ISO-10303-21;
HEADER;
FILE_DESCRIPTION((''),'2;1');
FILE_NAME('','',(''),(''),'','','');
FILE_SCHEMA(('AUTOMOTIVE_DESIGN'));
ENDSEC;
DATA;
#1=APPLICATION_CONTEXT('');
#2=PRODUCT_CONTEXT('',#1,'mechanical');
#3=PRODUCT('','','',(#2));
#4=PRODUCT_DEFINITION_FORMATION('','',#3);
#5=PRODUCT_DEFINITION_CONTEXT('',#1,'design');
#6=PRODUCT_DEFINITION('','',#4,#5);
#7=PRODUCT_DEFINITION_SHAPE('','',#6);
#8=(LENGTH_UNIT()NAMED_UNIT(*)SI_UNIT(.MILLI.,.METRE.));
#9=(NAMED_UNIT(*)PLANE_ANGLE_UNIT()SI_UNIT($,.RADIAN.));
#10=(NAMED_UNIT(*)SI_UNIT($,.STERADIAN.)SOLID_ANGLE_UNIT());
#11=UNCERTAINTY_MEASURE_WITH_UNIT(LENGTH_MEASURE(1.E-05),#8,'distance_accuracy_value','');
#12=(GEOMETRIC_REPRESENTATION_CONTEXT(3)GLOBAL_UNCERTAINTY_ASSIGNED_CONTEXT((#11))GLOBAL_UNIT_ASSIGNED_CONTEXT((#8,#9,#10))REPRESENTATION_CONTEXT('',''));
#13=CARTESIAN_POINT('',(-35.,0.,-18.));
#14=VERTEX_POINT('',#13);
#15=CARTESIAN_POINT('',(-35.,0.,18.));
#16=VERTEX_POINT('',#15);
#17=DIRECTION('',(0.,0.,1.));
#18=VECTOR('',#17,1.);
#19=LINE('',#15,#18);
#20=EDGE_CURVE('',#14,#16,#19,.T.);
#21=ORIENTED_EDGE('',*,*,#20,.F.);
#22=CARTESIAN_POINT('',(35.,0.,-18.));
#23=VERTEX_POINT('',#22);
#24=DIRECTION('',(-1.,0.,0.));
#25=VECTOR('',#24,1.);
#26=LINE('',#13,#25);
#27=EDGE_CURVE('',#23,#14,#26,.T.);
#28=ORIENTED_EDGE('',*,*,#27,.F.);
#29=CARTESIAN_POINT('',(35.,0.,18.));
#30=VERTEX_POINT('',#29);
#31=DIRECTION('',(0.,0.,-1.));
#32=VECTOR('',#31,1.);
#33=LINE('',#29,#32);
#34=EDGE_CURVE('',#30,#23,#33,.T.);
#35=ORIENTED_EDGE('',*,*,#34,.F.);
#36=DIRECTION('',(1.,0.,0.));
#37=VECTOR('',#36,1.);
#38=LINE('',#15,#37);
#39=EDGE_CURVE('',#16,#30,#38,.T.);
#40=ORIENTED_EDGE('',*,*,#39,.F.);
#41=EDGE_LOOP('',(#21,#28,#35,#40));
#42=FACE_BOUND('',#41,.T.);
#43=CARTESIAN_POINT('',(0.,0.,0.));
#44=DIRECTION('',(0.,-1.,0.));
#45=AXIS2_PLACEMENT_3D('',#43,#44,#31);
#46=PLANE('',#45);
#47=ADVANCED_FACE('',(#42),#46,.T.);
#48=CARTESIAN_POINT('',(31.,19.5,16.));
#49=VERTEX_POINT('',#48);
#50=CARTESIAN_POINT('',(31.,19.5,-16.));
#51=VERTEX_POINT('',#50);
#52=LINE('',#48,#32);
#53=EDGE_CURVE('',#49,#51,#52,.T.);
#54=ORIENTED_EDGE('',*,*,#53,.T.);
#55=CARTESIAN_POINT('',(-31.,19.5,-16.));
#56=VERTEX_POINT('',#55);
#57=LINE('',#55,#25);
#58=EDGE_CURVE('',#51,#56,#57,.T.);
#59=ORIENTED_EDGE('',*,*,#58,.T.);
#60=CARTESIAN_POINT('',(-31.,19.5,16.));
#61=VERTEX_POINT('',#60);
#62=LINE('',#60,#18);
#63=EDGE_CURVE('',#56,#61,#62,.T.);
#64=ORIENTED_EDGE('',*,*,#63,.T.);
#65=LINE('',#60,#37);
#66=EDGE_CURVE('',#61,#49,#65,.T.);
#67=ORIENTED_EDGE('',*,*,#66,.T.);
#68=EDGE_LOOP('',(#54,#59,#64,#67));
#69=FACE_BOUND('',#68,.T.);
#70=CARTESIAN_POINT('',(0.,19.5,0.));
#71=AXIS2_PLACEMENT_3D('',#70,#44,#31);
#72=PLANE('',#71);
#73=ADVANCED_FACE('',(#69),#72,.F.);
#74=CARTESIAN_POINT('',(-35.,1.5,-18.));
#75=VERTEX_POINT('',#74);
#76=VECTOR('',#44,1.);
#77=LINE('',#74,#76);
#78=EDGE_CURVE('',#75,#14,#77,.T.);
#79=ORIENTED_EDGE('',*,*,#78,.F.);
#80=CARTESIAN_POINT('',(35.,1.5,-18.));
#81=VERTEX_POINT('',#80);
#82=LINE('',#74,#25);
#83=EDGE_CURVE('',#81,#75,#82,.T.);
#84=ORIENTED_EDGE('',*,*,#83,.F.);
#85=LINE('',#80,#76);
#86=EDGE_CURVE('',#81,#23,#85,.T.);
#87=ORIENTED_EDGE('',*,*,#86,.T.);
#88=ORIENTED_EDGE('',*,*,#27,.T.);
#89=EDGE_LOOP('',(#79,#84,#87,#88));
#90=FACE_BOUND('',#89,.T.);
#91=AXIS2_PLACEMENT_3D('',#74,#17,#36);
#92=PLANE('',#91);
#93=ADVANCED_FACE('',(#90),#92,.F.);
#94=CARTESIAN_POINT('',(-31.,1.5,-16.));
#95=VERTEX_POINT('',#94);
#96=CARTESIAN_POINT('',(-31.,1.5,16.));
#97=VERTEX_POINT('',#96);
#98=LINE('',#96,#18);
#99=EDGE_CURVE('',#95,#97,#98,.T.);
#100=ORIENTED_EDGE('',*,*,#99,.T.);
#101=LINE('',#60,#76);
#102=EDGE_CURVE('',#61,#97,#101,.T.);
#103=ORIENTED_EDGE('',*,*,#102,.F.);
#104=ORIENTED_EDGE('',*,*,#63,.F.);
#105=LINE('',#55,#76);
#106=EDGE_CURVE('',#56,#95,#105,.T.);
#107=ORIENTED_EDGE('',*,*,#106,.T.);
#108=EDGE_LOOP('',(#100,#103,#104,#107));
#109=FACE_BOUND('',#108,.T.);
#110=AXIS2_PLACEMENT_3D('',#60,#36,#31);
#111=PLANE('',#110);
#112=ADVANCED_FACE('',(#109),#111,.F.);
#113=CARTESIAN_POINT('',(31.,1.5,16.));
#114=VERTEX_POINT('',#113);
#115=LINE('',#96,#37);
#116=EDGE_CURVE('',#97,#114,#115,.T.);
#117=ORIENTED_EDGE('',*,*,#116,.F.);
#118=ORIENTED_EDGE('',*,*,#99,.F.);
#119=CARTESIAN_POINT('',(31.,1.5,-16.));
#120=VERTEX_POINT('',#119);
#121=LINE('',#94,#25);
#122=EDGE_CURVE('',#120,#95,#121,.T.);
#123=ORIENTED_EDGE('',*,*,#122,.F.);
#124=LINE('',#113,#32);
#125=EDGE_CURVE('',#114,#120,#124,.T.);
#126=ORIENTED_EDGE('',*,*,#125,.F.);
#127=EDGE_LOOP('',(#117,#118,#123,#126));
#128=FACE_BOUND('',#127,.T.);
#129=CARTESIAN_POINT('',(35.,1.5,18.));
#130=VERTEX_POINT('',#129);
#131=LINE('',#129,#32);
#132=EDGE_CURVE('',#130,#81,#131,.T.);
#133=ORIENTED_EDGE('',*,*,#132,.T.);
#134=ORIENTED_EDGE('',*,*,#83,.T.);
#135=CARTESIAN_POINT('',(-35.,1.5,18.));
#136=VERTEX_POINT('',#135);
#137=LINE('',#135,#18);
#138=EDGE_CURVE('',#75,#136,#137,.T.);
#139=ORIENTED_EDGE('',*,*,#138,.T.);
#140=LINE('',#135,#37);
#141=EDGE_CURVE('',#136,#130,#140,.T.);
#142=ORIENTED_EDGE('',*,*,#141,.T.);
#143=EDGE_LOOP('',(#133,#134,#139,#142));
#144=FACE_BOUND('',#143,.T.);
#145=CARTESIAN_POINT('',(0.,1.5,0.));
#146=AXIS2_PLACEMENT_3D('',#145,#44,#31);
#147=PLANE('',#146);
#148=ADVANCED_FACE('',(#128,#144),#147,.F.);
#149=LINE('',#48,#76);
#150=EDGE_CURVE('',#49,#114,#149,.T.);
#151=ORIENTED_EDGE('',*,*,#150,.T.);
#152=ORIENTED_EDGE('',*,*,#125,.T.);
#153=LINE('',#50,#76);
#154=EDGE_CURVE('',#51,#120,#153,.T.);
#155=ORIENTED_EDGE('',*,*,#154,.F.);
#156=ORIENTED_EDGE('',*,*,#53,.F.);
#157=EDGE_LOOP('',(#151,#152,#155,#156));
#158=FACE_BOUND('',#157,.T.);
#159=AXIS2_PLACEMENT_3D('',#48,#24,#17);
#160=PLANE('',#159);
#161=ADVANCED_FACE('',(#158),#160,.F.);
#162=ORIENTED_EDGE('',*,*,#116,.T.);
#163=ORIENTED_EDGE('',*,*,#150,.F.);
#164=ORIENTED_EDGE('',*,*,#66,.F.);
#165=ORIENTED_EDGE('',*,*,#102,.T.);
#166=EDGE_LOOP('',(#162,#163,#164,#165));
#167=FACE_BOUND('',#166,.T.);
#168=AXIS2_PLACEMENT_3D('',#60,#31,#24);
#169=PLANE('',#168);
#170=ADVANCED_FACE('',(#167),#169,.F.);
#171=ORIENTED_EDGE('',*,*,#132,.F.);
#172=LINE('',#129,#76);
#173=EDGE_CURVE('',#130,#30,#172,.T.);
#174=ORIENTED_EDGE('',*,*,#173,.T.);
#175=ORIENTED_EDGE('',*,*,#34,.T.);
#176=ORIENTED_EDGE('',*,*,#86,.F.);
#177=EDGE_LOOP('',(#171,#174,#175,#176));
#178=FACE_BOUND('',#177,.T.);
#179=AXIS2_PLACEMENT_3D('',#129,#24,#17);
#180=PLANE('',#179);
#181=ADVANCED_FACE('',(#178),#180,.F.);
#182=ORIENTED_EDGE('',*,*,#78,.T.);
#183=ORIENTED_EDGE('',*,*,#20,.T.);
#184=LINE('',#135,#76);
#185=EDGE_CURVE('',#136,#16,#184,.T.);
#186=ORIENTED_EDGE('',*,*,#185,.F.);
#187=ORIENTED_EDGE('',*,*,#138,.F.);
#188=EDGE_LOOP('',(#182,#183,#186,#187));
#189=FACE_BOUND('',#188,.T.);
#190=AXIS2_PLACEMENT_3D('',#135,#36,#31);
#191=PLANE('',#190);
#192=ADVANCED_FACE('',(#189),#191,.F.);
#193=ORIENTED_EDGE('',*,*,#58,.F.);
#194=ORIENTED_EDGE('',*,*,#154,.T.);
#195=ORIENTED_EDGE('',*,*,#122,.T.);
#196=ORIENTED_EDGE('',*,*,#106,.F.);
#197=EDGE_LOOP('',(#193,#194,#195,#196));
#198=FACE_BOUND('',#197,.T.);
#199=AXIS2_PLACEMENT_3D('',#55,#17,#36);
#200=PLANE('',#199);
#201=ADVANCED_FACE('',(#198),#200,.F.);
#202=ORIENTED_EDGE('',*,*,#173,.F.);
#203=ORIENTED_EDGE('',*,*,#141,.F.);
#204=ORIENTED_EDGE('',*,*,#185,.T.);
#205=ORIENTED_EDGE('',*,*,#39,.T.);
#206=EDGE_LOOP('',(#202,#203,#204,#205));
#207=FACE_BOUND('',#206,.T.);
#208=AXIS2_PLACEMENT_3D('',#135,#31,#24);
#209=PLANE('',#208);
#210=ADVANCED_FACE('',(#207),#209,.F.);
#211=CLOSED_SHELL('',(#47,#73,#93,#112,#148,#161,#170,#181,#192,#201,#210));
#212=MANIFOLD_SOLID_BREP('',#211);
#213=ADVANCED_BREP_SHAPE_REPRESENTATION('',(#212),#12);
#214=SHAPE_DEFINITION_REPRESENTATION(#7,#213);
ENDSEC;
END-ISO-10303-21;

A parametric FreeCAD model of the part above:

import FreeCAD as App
import Part
import Sketcher
from FreeCAD import Vector

doc = App.newDocument("Part")
body = doc.addObject("PartDesign::Body", "Body")

# Sketch on XZ plane
sketch1 = body.newObject("Sketcher::SketchObject", "Sketch")
sketch1.AttachmentSupport = (doc.getObject("XZ_Plane"), [""])
sketch1.MapMode = "FlatFace"
sketch1.addGeometry([
    Part.LineSegment(Vector(-35, -18, 0), Vector(-35, 18, 0)),
    Part.LineSegment(Vector(-35, 18, 0), Vector(35, 18, 0)),
    Part.LineSegment(Vector(35, 18, 0), Vector(35, -18, 0)),
    Part.LineSegment(Vector(35, -18, 0), Vector(-35, -18, 0)),
], False)
sketch1.addConstraint([
    Sketcher.Constraint("Coincident", 0, 2, 1, 1),
    Sketcher.Constraint("Coincident", 1, 2, 2, 1),
    Sketcher.Constraint("Coincident", 2, 2, 3, 1),
    Sketcher.Constraint("Coincident", 3, 2, 0, 1),
    Sketcher.Constraint("Vertical", 0),
    Sketcher.Constraint("Horizontal", 1),
    Sketcher.Constraint("Vertical", 2),
    Sketcher.Constraint("Horizontal", 3),
    Sketcher.Constraint("Symmetric", 0, 2, 2, 2, -1, 1),
    Sketcher.Constraint("DistanceX", 1, 1, 1, 2, 70.0),
    Sketcher.Constraint("DistanceY", 0, 1, 0, 2, 36.0),
])
pad1 = body.newObject("PartDesign::Pad", "Pad")
pad1.Profile = sketch1
pad1.Length = 1.5
pad1.Reversed = True

# Sketch on XZ plane
sketch2 = body.newObject("Sketcher::SketchObject", "Sketch001")
sketch2.AttachmentSupport = (doc.getObject("XZ_Plane"), [""])
sketch2.MapMode = "FlatFace"
sketch2.AttachmentOffset = App.Placement(Vector(0, 0, -1.5), App.Rotation())
sketch2.addGeometry([
    Part.LineSegment(Vector(-31, -16, 0), Vector(-31, 16, 0)),
    Part.LineSegment(Vector(-31, 16, 0), Vector(31, 16, 0)),
    Part.LineSegment(Vector(31, 16, 0), Vector(31, -16, 0)),
    Part.LineSegment(Vector(31, -16, 0), Vector(-31, -16, 0)),
], False)
sketch2.addConstraint([
    Sketcher.Constraint("Coincident", 0, 2, 1, 1),
    Sketcher.Constraint("Coincident", 1, 2, 2, 1),
    Sketcher.Constraint("Coincident", 2, 2, 3, 1),
    Sketcher.Constraint("Coincident", 3, 2, 0, 1),
    Sketcher.Constraint("Vertical", 0),
    Sketcher.Constraint("Horizontal", 1),
    Sketcher.Constraint("Vertical", 2),
    Sketcher.Constraint("Horizontal", 3),
    Sketcher.Constraint("Symmetric", 0, 2, 2, 2, -1, 1),
    Sketcher.Constraint("DistanceX", 1, 1, 1, 2, 62.0),
    Sketcher.Constraint("DistanceY", 0, 1, 0, 2, 32.0),
])
pad2 = body.newObject("PartDesign::Pad", "Pad001")
pad2.Profile = sketch2
pad2.Length = 18
pad2.Reversed = True

doc.recompute()
